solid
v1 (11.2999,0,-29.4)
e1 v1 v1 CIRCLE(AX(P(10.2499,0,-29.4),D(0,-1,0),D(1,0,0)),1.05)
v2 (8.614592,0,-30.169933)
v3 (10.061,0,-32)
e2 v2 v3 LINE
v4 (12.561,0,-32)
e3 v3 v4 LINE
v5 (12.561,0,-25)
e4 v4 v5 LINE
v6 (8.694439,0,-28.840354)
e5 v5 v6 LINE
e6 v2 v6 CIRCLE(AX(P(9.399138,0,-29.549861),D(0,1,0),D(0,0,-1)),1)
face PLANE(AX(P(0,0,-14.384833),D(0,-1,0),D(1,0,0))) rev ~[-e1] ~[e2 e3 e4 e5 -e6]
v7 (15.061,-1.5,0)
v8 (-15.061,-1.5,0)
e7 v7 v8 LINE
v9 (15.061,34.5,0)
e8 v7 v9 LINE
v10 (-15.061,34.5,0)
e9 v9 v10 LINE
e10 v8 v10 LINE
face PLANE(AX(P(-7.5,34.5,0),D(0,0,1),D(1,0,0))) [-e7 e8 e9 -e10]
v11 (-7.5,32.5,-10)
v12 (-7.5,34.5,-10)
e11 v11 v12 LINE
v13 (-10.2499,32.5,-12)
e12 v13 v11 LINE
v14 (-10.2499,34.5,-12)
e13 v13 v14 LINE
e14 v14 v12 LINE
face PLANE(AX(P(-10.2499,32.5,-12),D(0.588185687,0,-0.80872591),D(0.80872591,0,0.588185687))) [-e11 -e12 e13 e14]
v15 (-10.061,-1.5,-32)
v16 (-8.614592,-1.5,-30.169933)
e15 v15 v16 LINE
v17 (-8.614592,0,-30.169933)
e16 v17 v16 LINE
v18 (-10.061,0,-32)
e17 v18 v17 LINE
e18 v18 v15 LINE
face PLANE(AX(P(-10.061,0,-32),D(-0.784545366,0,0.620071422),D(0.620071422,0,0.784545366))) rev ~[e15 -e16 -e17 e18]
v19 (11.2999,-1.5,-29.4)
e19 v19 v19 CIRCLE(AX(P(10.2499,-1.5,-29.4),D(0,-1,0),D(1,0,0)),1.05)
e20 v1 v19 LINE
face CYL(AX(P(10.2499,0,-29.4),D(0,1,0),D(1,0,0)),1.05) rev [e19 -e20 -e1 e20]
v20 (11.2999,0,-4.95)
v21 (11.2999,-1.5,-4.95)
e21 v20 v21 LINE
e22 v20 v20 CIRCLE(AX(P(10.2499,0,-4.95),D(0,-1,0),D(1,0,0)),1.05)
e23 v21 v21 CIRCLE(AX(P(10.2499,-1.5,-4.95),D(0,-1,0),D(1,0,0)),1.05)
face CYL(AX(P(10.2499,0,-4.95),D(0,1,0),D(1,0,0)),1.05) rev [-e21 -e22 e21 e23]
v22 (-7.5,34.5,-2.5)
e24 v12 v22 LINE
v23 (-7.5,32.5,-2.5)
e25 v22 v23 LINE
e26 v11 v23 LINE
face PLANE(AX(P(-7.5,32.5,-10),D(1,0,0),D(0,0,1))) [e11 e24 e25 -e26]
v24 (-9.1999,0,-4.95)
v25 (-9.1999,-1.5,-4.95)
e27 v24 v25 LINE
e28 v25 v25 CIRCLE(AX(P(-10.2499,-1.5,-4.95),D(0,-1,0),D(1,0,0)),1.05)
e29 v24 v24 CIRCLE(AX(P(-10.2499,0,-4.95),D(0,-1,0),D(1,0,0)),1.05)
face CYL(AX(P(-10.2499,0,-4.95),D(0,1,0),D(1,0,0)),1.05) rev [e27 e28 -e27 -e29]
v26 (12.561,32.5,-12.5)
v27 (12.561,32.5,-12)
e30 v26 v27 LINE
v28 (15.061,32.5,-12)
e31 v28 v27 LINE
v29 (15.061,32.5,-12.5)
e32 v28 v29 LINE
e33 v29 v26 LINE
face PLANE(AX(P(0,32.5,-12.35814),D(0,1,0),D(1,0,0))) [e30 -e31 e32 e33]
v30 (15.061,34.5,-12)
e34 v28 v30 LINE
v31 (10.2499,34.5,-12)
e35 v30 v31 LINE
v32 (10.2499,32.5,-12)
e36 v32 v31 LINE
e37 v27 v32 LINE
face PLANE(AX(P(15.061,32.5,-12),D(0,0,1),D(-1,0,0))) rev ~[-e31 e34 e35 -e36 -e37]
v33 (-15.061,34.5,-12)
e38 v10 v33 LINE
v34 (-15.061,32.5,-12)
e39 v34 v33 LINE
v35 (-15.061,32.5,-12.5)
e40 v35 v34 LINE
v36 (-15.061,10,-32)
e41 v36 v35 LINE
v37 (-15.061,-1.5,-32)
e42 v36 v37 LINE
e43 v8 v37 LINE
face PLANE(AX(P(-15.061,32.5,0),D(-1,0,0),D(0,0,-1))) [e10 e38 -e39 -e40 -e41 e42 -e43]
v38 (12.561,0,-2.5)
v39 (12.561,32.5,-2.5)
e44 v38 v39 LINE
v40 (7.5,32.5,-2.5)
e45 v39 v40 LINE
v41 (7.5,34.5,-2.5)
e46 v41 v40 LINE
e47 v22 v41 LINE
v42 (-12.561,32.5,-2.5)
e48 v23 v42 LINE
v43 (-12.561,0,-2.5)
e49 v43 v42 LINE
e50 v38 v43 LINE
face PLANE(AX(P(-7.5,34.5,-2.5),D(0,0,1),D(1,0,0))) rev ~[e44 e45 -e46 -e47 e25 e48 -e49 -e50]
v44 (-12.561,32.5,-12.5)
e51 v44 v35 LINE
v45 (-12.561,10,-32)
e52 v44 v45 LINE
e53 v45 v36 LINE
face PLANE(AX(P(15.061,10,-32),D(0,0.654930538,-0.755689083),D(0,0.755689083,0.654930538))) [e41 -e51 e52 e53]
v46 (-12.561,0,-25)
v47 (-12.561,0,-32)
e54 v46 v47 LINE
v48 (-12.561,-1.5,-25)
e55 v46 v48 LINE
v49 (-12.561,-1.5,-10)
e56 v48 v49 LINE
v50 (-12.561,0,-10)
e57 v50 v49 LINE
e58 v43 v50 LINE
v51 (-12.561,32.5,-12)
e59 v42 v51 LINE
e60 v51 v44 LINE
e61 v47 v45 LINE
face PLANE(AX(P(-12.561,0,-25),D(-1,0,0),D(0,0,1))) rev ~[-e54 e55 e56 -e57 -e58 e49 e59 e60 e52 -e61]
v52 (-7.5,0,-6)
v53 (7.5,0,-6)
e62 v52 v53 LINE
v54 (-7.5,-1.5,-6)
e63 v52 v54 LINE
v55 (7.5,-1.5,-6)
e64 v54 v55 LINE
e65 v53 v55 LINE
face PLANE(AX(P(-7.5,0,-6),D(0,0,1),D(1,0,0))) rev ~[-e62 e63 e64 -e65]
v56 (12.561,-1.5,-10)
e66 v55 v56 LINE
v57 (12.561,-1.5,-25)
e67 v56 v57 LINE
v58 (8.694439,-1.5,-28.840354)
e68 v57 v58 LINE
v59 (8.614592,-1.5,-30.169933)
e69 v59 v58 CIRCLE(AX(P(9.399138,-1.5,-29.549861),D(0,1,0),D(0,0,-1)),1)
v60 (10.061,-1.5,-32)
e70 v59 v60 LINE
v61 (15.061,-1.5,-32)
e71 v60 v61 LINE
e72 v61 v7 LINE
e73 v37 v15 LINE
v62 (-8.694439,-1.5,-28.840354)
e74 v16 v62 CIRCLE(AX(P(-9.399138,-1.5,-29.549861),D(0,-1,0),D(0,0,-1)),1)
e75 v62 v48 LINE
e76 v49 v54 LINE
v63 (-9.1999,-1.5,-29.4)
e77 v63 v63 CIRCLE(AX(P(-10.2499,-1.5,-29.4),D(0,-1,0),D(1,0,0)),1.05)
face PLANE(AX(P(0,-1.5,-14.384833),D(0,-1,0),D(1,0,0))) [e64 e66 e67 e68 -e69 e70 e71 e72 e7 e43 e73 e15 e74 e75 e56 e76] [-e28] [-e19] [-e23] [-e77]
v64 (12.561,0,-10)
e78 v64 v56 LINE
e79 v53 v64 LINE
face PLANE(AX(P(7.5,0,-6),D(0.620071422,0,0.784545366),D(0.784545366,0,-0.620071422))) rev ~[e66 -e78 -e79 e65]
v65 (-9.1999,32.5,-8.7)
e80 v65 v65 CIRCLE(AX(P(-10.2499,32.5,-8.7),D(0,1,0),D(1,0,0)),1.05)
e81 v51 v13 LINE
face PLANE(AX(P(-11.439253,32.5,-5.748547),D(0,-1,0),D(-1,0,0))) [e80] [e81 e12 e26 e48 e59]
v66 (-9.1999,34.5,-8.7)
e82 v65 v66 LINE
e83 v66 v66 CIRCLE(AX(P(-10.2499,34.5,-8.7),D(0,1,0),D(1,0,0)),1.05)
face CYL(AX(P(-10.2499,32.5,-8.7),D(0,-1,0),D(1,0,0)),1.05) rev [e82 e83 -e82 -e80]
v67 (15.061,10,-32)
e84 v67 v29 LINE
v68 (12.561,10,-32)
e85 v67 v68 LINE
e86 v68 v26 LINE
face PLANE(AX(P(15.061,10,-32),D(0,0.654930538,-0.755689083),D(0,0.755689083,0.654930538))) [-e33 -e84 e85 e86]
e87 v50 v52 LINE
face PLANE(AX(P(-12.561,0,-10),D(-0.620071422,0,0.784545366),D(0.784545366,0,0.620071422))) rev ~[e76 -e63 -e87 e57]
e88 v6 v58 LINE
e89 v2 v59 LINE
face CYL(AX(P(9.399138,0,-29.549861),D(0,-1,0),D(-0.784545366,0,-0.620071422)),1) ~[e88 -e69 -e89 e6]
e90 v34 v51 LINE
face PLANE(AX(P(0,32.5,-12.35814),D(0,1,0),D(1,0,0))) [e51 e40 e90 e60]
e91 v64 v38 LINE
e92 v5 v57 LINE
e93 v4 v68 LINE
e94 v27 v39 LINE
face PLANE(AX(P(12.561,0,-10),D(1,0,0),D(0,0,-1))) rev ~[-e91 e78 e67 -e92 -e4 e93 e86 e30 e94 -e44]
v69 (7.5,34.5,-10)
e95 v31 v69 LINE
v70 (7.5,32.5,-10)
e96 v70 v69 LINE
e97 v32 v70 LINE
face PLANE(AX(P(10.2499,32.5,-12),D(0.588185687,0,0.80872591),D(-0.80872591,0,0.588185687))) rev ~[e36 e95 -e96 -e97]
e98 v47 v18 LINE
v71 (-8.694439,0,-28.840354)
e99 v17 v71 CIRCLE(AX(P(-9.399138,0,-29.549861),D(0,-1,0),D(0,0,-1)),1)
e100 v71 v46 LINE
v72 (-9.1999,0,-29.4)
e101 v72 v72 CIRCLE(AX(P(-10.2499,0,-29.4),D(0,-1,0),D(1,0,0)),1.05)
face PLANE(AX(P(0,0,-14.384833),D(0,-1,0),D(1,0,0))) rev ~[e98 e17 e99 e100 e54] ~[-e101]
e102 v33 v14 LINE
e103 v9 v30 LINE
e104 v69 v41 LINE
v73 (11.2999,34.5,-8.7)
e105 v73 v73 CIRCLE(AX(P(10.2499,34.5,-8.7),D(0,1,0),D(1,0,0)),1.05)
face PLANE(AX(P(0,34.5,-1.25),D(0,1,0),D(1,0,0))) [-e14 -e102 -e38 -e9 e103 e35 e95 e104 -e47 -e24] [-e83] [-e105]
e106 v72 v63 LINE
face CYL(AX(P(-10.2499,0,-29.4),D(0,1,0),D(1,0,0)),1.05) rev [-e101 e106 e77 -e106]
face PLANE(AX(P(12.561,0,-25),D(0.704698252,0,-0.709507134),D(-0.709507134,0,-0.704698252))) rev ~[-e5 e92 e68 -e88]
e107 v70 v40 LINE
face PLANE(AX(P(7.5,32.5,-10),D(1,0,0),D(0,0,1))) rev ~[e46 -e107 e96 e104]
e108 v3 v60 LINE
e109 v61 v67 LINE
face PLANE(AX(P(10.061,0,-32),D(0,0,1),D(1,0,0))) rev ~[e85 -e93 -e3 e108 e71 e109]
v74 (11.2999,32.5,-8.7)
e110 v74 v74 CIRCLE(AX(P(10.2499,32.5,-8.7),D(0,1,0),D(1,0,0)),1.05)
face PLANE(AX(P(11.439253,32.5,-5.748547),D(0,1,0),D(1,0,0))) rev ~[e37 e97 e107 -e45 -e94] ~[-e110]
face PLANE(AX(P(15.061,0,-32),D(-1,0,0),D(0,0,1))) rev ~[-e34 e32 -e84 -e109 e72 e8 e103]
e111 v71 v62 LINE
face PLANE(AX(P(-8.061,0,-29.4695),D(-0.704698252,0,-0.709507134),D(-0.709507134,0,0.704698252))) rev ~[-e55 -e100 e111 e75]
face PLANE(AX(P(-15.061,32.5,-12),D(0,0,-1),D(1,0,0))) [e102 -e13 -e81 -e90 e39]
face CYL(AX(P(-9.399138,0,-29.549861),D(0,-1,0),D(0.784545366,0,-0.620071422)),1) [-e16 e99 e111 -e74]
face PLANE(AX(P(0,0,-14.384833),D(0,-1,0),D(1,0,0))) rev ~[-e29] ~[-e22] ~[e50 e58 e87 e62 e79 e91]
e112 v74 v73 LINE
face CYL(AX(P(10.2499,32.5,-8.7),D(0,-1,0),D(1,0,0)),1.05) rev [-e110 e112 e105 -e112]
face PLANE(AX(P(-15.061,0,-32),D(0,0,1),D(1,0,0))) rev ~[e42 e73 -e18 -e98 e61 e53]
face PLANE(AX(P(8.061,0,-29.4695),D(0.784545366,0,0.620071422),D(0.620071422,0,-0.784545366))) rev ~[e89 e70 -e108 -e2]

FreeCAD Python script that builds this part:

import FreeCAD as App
import Part
import Sketcher

V = App.Vector


def edges_at(feature, points):
    """Names of the edges that pass closest to the given points."""
    edges = feature.Shape.Edges
    near = lambda p: min(range(len(edges)), key=lambda i: edges[i].distToShape(Part.Vertex(*p))[0])
    return sorted({f"Edge{near(p) + 1}" for p in points})

doc = App.newDocument("Part")
body = doc.addObject("PartDesign::Body", "Body")

# Sketch on XZ plane
sketch1 = doc.addObject("Sketcher::SketchObject", "Sketch")
body.addObject(sketch1)
sketch1.AttachmentSupport = (doc.XZ_Plane, [""])
sketch1.MapMode = "FlatFace"
sketch1.addGeometry([
    Part.LineSegment(V(15.061, 0, 0), V(15.061, -32, 0)),  # 0
    Part.LineSegment(V(15.061, -32, 0), V(12.561, -32, 0)),  # 1
    Part.LineSegment(V(12.561, -32, 0), V(12.561, -2.5, 0)),  # 2
    Part.LineSegment(V(12.561, -2.5, 0), V(-12.561, -2.5, 0)),  # 3
    Part.LineSegment(V(-12.561, -2.5, 0), V(-12.561, -32, 0)),  # 4
    Part.LineSegment(V(-12.561, -32, 0), V(-15.061, -32, 0)),  # 5
    Part.LineSegment(V(-15.061, -32, 0), V(-15.061, 0, 0)),  # 6
    Part.LineSegment(V(-15.061, 0, 0), V(15.061, 0, 0)),  # 7
], False)
sketch1.addConstraint([
    Sketcher.Constraint("Coincident", 0, 2, 1, 1),
    Sketcher.Constraint("Coincident", 1, 2, 2, 1),
    Sketcher.Constraint("Coincident", 2, 2, 3, 1),
    Sketcher.Constraint("Coincident", 3, 2, 4, 1),
    Sketcher.Constraint("Coincident", 4, 2, 5, 1),
    Sketcher.Constraint("Coincident", 5, 2, 6, 1),
    Sketcher.Constraint("Coincident", 6, 2, 7, 1),
    Sketcher.Constraint("Coincident", 7, 2, 0, 1),
    Sketcher.Constraint("Vertical", 0),
    Sketcher.Constraint("Horizontal", 1),
    Sketcher.Constraint("Vertical", 2),
    Sketcher.Constraint("Horizontal", 3),
    Sketcher.Constraint("Vertical", 4),
    Sketcher.Constraint("Horizontal", 5),
    Sketcher.Constraint("Vertical", 6),
    Sketcher.Constraint("Horizontal", 7),
    Sketcher.Constraint("Symmetric", 6, 2, 7, 2, -1, 1),
    Sketcher.Constraint("Symmetric", 1, 2, 4, 2, -2),
    Sketcher.Constraint("DistanceY", 0, 2, 0, 1, 32.0),
    Sketcher.Constraint("DistanceX", 1, 2, 1, 1, 2.5),
    Sketcher.Constraint("DistanceY", 2, 1, 2, 2, 29.5),
    Sketcher.Constraint("DistanceX", 3, 2, 3, 1, 25.122),
])
pad1 = doc.addObject("PartDesign::Pad", "Pad")
body.addObject(pad1)
pad1.Profile = sketch1
pad1.Length = 32.5
pad1.Reversed = True

# Sketch on YZ plane
sketch2 = doc.addObject("Sketcher::SketchObject", "Sketch001")
body.addObject(sketch2)
sketch2.AttachmentSupport = (doc.YZ_Plane, [""])
sketch2.MapMode = "FlatFace"
sketch2.AttachmentOffset = App.Placement(V(0, 0, 15.061), App.Rotation())
sketch2.addGeometry([
    Part.LineSegment(V(32.5, -12.5, 0), V(10, -32, 0)),
    Part.LineSegment(V(10, -32, 0), V(32.5, -32, 0)),
    Part.LineSegment(V(32.5, -32, 0), V(32.5, -12.5, 0)),
], False)
sketch2.addConstraint([
    Sketcher.Constraint("Coincident", 0, 2, 1, 1),
    Sketcher.Constraint("Coincident", 1, 2, 2, 1),
    Sketcher.Constraint("Coincident", 2, 2, 0, 1),
    Sketcher.Constraint("Horizontal", 1),
    Sketcher.Constraint("Vertical", 2),
    Sketcher.Constraint("DistanceX", 1, 1, 1, 2, 22.5),
    Sketcher.Constraint("DistanceY", 2, 1, 2, 2, 19.5),
    Sketcher.Constraint("DistanceX", -1, 1, 0, 2, 10.0),
    Sketcher.Constraint("DistanceY", 0, 2, -1, 1, 32.0),
])
pocket1 = doc.addObject("PartDesign::Pocket", "Pocket")
body.addObject(pocket1)
pocket1.Profile = sketch2
pocket1.Type = "ThroughAll"

# Sketch on XZ plane
sketch3 = doc.addObject("Sketcher::SketchObject", "Sketch002")
body.addObject(sketch3)
sketch3.AttachmentSupport = (doc.XZ_Plane, [""])
sketch3.MapMode = "FlatFace"
sketch3.addGeometry([
    Part.LineSegment(V(-15.061, 0, 0), V(-15.061, -32, 0)),  # 0
    Part.LineSegment(V(-15.061, -32, 0), V(-10.061, -32, 0)),  # 1
    Part.LineSegment(V(-10.061, -32, 0), V(-8.061, -29.4695, 0)),  # 2
    Part.LineSegment(V(-8.061, -29.4695, 0), V(-12.561, -25, 0)),  # 3
    Part.LineSegment(V(-12.561, -25, 0), V(-12.561, -10, 0)),  # 4
    Part.LineSegment(V(-12.561, -10, 0), V(-7.5, -6, 0)),  # 5
    Part.LineSegment(V(-7.5, -6, 0), V(7.5, -6, 0)),  # 6
    Part.LineSegment(V(7.5, -6, 0), V(12.561, -10, 0)),  # 7
    Part.LineSegment(V(12.561, -10, 0), V(12.561, -25, 0)),  # 8
    Part.LineSegment(V(12.561, -25, 0), V(8.061, -29.4695, 0)),  # 9
    Part.LineSegment(V(8.061, -29.4695, 0), V(10.061, -32, 0)),  # 10
    Part.LineSegment(V(10.061, -32, 0), V(15.061, -32, 0)),  # 11
    Part.LineSegment(V(15.061, -32, 0), V(15.061, 0, 0)),  # 12
    Part.LineSegment(V(15.061, 0, 0), V(-15.061, 0, 0)),  # 13
    Part.Circle(V(-10.2499, -29.4, 0), V(0, 0, 1), 1.05),  # 14
    Part.Circle(V(10.2499, -29.4, 0), V(0, 0, 1), 1.05),  # 15
    Part.Circle(V(-10.2499, -4.95, 0), V(0, 0, 1), 1.05),  # 16
    Part.Circle(V(10.2499, -4.95, 0), V(0, 0, 1), 1.05),  # 17
], False)
sketch3.addConstraint([
    Sketcher.Constraint("Coincident", 0, 2, 1, 1),
    Sketcher.Constraint("Coincident", 1, 2, 2, 1),
    Sketcher.Constraint("Coincident", 2, 2, 3, 1),
    Sketcher.Constraint("Coincident", 3, 2, 4, 1),
    Sketcher.Constraint("Coincident", 4, 2, 5, 1),
    Sketcher.Constraint("Coincident", 5, 2, 6, 1),
    Sketcher.Constraint("Coincident", 6, 2, 7, 1),
    Sketcher.Constraint("Coincident", 7, 2, 8, 1),
    Sketcher.Constraint("Coincident", 8, 2, 9, 1),
    Sketcher.Constraint("Coincident", 9, 2, 10, 1),
    Sketcher.Constraint("Coincident", 10, 2, 11, 1),
    Sketcher.Constraint("Coincident", 11, 2, 12, 1),
    Sketcher.Constraint("Coincident", 12, 2, 13, 1),
    Sketcher.Constraint("Coincident", 13, 2, 0, 1),
    Sketcher.Constraint("Vertical", 0),
    Sketcher.Constraint("Horizontal", 1),
    Sketcher.Constraint("Vertical", 4),
    Sketcher.Constraint("Horizontal", 6),
    Sketcher.Constraint("Vertical", 8),
    Sketcher.Constraint("Horizontal", 11),
    Sketcher.Constraint("Vertical", 12),
    Sketcher.Constraint("Horizontal", 13),
    Sketcher.Constraint("Equal", 14, 15),
    Sketcher.Constraint("Equal", 15, 16),
    Sketcher.Constraint("Equal", 16, 17),
    Sketcher.Constraint("Symmetric", 12, 2, 13, 2, -1, 1),
    Sketcher.Constraint("Symmetric", 14, 3, 15, 3, -2),
    Sketcher.Constraint("Symmetric", 16, 3, 17, 3, -2),
    Sketcher.Constraint("Symmetric", 4, 2, 7, 2, -2),
    Sketcher.Constraint("Symmetric", 2, 2, 9, 2, -2),
    Sketcher.Constraint("Symmetric", 1, 2, 10, 2, -2),
    Sketcher.Constraint("Perpendicular", 2, 7),
    Sketcher.Constraint("Perpendicular", 5, 10),
    Sketcher.Constraint("Horizontal", 3, 2, 8, 2),
    Sketcher.Constraint("Vertical", 14, 3, 16, 3),
    Sketcher.Constraint("Equal", 6, 4),
    Sketcher.Constraint("Diameter", 14, 2.1),
    Sketcher.Constraint("DistanceX", 1, 1, 1, 2, 5.0),
    Sketcher.Constraint("DistanceX", 6, 1, 6, 2, 15.0),
    Sketcher.Constraint("DistanceY", 0, 2, 0, 1, 32.0),
    Sketcher.Constraint("DistanceY", 3, 2, -1, 1, 25.0),
    Sketcher.Constraint("DistanceY", 5, 2, -1, 1, 6.0),
    Sketcher.Constraint("DistanceX", 1, 2, 2, 2, 2.0),
    Sketcher.Constraint("DistanceY", 14, 3, -1, 1, 29.4),
    Sketcher.Constraint("DistanceX", 3, 2, 2, 2, 4.5),
    Sketcher.Constraint("DistanceX", 13, 2, 13, 1, 30.122),
    Sketcher.Constraint("DistanceY", 16, 3, -1, 1, 4.95),
    Sketcher.Constraint("DistanceX", 14, 3, -1, 1, 10.2499),
])
pad2 = doc.addObject("PartDesign::Pad", "Pad001")
body.addObject(pad2)
pad2.Profile = sketch3
pad2.Length = 1.5

# Sketch on XZ plane
sketch4 = doc.addObject("Sketcher::SketchObject", "Sketch003")
body.addObject(sketch4)
sketch4.AttachmentSupport = (doc.XZ_Plane, [""])
sketch4.MapMode = "FlatFace"
sketch4.AttachmentOffset = App.Placement(V(0, 0, -32.5), App.Rotation())
sketch4.addGeometry([
    Part.LineSegment(V(-10.2499, -12, 0), V(-15.061, -12, 0)),  # 0
    Part.LineSegment(V(-15.061, -12, 0), V(-15.061, 0, 0)),  # 1
    Part.LineSegment(V(-15.061, 0, 0), V(-7.5, 0, 0)),  # 2
    Part.LineSegment(V(-7.5, 0, 0), V(-7.5, -10, 0)),  # 3
    Part.LineSegment(V(-7.5, -10, 0), V(-10.2499, -12, 0)),  # 4
    Part.Circle(V(-10.2499, -8.7, 0), V(0, 0, 1), 1.05),  # 5
    Part.LineSegment(V(15.061, -12, 0), V(10.2499, -12, 0)),  # 6
    Part.LineSegment(V(10.2499, -12, 0), V(7.5, -10, 0)),  # 7
    Part.LineSegment(V(7.5, -10, 0), V(7.5, 0, 0)),  # 8
    Part.LineSegment(V(7.5, 0, 0), V(15.061, 0, 0)),  # 9
    Part.LineSegment(V(15.061, 0, 0), V(15.061, -12, 0)),  # 10
    Part.Circle(V(10.2499, -8.7, 0), V(0, 0, 1), 1.05),  # 11
], False)
sketch4.addConstraint([
    Sketcher.Constraint("Coincident", 0, 2, 1, 1),
    Sketcher.Constraint("Coincident", 1, 2, 2, 1),
    Sketcher.Constraint("Coincident", 2, 2, 3, 1),
    Sketcher.Constraint("Coincident", 3, 2, 4, 1),
    Sketcher.Constraint("Coincident", 4, 2, 0, 1),
    Sketcher.Constraint("Coincident", 6, 2, 7, 1),
    Sketcher.Constraint("Coincident", 7, 2, 8, 1),
    Sketcher.Constraint("Coincident", 8, 2, 9, 1),
    Sketcher.Constraint("Coincident", 9, 2, 10, 1),
    Sketcher.Constraint("Coincident", 10, 2, 6, 1),
    Sketcher.Constraint("Horizontal", 0),
    Sketcher.Constraint("Vertical", 1),
    Sketcher.Constraint("Horizontal", 2),
    Sketcher.Constraint("Vertical", 3),
    Sketcher.Constraint("Horizontal", 6),
    Sketcher.Constraint("Vertical", 8),
    Sketcher.Constraint("Horizontal", 9),
    Sketcher.Constraint("Vertical", 10),
    Sketcher.Constraint("Equal", 5, 11),
    Sketcher.Constraint("Symmetric", 2, 2, 8, 2, -1, 1),
    Sketcher.Constraint("Symmetric", 5, 3, 11, 3, -2),
    Sketcher.Constraint("Symmetric", 4, 2, 6, 2, -2),
    Sketcher.Constraint("Symmetric", 1, 2, 9, 2, -2),
    Sketcher.Constraint("Horizontal", 3, 2, 7, 2),
    Sketcher.Constraint("Vertical", 5, 3, 4, 2),
    Sketcher.Constraint("Diameter", 5, 2.1),
    Sketcher.Constraint("DistanceY", 1, 1, 1, 2, 12.0),
    Sketcher.Constraint("DistanceY", 3, 2, 3, 1, 10.0),
    Sketcher.Constraint("DistanceX", 3, 2, 7, 2, 15.0),
    Sketcher.Constraint("DistanceY", 5, 3, -1, 1, 8.7),
    Sketcher.Constraint("DistanceX", 2, 1, 2, 2, 7.561),
    Sketcher.Constraint("DistanceX", 0, 2, 0, 1, 4.8111),
])
pad3 = doc.addObject("PartDesign::Pad", "Pad002")
body.addObject(pad3)
pad3.Profile = sketch4
pad3.Length = 2
pad3.Reversed = True
doc.recompute()

fillet = doc.addObject("PartDesign::Fillet", "Fillet")
body.addObject(fillet)
fillet.Base = (pad3, edges_at(pad3, [(-8.061, -0.75, -29.47), (8.061, -0.75, -29.47)]))
fillet.Radius = 1

# Sketch on XZ plane
sketch5 = doc.addObject("Sketcher::SketchObject", "Sketch004")
body.addObject(sketch5)
sketch5.AttachmentSupport = (doc.XZ_Plane, [""])
sketch5.MapMode = "FlatFace"
sketch5.AttachmentOffset = App.Placement(V(0, 0, -34.5), App.Rotation())
sketch5.addGeometry([
    Part.LineSegment(V(-7.5, -2.5, 0), V(-7.5, 0, 0)),
    Part.LineSegment(V(-7.5, 0, 0), V(7.5, 0, 0)),
    Part.LineSegment(V(7.5, 0, 0), V(7.5, -2.5, 0)),
    Part.LineSegment(V(7.5, -2.5, 0), V(-7.5, -2.5, 0)),
], False)
sketch5.addConstraint([
    Sketcher.Constraint("Coincident", 0, 2, 1, 1),
    Sketcher.Constraint("Coincident", 1, 2, 2, 1),
    Sketcher.Constraint("Coincident", 2, 2, 3, 1),
    Sketcher.Constraint("Coincident", 3, 2, 0, 1),
    Sketcher.Constraint("Vertical", 0),
    Sketcher.Constraint("Horizontal", 1),
    Sketcher.Constraint("Vertical", 2),
    Sketcher.Constraint("Horizontal", 3),
    Sketcher.Constraint("Symmetric", 0, 2, 1, 2, -1, 1),
    Sketcher.Constraint("DistanceX", 1, 1, 1, 2, 15.0),
    Sketcher.Constraint("DistanceY", 0, 1, 0, 2, 2.5),
])
pad4 = doc.addObject("PartDesign::Pad", "Pad003")
body.addObject(pad4)
pad4.Profile = sketch5
pad4.Length = 2

doc.recompute()
